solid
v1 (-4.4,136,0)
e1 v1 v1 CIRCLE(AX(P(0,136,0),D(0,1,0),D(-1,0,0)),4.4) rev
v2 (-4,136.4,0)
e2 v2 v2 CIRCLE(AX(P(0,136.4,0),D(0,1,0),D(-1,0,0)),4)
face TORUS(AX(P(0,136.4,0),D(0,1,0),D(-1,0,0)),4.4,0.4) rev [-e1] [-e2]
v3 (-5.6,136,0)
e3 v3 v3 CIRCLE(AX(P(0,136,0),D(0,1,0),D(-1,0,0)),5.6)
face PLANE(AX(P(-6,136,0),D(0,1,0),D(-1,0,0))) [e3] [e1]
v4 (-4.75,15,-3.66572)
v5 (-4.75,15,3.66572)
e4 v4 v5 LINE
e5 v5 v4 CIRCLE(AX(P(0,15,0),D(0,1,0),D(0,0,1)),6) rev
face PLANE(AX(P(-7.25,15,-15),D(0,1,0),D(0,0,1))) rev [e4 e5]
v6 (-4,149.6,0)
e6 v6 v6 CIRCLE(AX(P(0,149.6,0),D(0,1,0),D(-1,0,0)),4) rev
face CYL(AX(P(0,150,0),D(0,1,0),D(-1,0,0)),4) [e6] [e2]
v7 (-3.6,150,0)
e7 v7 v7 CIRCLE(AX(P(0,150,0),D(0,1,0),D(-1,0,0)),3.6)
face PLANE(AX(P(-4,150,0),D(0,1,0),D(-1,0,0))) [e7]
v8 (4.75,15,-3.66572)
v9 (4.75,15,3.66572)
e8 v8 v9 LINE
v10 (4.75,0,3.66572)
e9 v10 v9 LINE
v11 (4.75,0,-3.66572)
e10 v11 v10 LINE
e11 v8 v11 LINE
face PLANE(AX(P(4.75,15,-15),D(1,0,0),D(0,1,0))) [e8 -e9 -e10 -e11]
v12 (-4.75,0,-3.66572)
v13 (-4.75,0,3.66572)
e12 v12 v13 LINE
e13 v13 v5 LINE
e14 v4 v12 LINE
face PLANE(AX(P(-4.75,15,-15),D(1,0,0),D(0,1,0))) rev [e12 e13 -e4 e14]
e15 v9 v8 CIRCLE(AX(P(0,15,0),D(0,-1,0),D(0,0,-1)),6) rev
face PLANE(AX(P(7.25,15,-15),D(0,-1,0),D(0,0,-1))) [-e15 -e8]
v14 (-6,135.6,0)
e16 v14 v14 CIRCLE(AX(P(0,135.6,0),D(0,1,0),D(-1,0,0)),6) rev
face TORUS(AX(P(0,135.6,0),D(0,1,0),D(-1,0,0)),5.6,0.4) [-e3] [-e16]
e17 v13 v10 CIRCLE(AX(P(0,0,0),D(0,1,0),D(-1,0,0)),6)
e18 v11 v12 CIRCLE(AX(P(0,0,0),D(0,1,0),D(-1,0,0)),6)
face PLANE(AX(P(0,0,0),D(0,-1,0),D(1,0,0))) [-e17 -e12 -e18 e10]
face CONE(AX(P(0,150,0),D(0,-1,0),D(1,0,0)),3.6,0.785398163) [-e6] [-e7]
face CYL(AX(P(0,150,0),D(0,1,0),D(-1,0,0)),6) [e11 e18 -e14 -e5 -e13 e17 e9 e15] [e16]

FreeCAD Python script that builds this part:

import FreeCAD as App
import Part
import Sketcher

V = App.Vector


def edges_at(feature, points):
    """Names of the edges that pass closest to the given points."""
    edges = feature.Shape.Edges
    near = lambda p: min(range(len(edges)), key=lambda i: edges[i].distToShape(Part.Vertex(*p))[0])
    return sorted({f"Edge{near(p) + 1}" for p in points})


def add_polygon(sketch, points):
    """Adds a closed chain of lines whose ends are joined by coincident constraints."""
    first, n = sketch.GeometryCount, len(points)
    for a, b in zip(points, points[1:] + points[:1]):
        sketch.addGeometry(Part.LineSegment(App.Vector(*a, 0), App.Vector(*b, 0)), False)
    for i in range(n):
        sketch.addConstraint(Sketcher.Constraint("Coincident", first + i, 2, first + (i + 1) % n, 1))

doc = App.newDocument("Part")
body = doc.addObject("PartDesign::Body", "Body")

# Sketch on XY plane
sketch1 = body.newObject("Sketcher::SketchObject", "Sketch")
sketch1.AttachmentSupport = (doc.getObject("XY_Plane"), [""])
sketch1.MapMode = "FlatFace"
add_polygon(sketch1, [(-6, 0), (0, 0), (0, 150), (-4, 150), (-4, 136), (-6, 136)])  # lines 0-5
sketch1.addConstraint(Sketcher.Constraint("Horizontal", 0))
sketch1.addConstraint(Sketcher.Constraint("Vertical", 1))
sketch1.addConstraint(Sketcher.Constraint("Horizontal", 2))
sketch1.addConstraint(Sketcher.Constraint("Vertical", 3))
sketch1.addConstraint(Sketcher.Constraint("Horizontal", 4))
sketch1.addConstraint(Sketcher.Constraint("Vertical", 5))
sketch1.addConstraint(Sketcher.Constraint("Coincident", 0, 2, -1, 1))
sketch1.addConstraint(Sketcher.Constraint("DistanceX", 0, 1, 0, 2, 6.0))
sketch1.addConstraint(Sketcher.Constraint("DistanceX", 2, 2, 2, 1, 4.0))
sketch1.addConstraint(Sketcher.Constraint("DistanceY", 1, 1, 1, 2, 150.0))
sketch1.addConstraint(Sketcher.Constraint("DistanceY", 3, 2, 3, 1, 14.0))
revolution = body.newObject("PartDesign::Revolution", "Revolution")
revolution.Profile = sketch1
revolution.ReferenceAxis = (sketch1, ["V_Axis"])
revolution.Angle = 360

# Sketch on XY plane
sketch2 = body.newObject("Sketcher::SketchObject", "Sketch001")
sketch2.AttachmentSupport = (doc.getObject("XY_Plane"), [""])
sketch2.MapMode = "FlatFace"
add_polygon(sketch2, [(-7.2, 15), (-7.2, 0), (-4.8, 0), (-4.8, 15)])  # lines 0-3
sketch2.addConstraint(Sketcher.Constraint("Vertical", 0))
sketch2.addConstraint(Sketcher.Constraint("Horizontal", 1))
sketch2.addConstraint(Sketcher.Constraint("Vertical", 2))
sketch2.addConstraint(Sketcher.Constraint("Horizontal", 3))
sketch2.addConstraint(Sketcher.Constraint("PointOnObject", 0, 2, -1))
sketch2.addConstraint(Sketcher.Constraint("DistanceY", 0, 2, 0, 1, 15.0))
sketch2.addConstraint(Sketcher.Constraint("DistanceX", 1, 1, 1, 2, 2.5))
sketch2.addConstraint(Sketcher.Constraint("DistanceX", 0, 2, -1, 1, 7.25))
pocket1 = body.newObject("PartDesign::Pocket", "Pocket")
pocket1.Profile = sketch2
pocket1.Length = 30
pocket1.Midplane = True
doc.recompute()

mirrored = body.newObject("PartDesign::Mirrored", "Mirrored")
mirrored.Originals = [pocket1]
mirrored.MirrorPlane = (doc.getObject("YZ_Plane"), [""])
body.Tip = mirrored
doc.recompute()

chamfer = body.newObject("PartDesign::Chamfer", "Chamfer")
chamfer.Base = (mirrored, edges_at(mirrored, [(4, 150, 0)]))
chamfer.Size = 0.4
doc.recompute()

fillet = body.newObject("PartDesign::Fillet", "Fillet")
fillet.Base = (chamfer, edges_at(chamfer, [(4, 136, 0), (6, 136, 0)]))
fillet.Radius = 0.4

doc.recompute()
